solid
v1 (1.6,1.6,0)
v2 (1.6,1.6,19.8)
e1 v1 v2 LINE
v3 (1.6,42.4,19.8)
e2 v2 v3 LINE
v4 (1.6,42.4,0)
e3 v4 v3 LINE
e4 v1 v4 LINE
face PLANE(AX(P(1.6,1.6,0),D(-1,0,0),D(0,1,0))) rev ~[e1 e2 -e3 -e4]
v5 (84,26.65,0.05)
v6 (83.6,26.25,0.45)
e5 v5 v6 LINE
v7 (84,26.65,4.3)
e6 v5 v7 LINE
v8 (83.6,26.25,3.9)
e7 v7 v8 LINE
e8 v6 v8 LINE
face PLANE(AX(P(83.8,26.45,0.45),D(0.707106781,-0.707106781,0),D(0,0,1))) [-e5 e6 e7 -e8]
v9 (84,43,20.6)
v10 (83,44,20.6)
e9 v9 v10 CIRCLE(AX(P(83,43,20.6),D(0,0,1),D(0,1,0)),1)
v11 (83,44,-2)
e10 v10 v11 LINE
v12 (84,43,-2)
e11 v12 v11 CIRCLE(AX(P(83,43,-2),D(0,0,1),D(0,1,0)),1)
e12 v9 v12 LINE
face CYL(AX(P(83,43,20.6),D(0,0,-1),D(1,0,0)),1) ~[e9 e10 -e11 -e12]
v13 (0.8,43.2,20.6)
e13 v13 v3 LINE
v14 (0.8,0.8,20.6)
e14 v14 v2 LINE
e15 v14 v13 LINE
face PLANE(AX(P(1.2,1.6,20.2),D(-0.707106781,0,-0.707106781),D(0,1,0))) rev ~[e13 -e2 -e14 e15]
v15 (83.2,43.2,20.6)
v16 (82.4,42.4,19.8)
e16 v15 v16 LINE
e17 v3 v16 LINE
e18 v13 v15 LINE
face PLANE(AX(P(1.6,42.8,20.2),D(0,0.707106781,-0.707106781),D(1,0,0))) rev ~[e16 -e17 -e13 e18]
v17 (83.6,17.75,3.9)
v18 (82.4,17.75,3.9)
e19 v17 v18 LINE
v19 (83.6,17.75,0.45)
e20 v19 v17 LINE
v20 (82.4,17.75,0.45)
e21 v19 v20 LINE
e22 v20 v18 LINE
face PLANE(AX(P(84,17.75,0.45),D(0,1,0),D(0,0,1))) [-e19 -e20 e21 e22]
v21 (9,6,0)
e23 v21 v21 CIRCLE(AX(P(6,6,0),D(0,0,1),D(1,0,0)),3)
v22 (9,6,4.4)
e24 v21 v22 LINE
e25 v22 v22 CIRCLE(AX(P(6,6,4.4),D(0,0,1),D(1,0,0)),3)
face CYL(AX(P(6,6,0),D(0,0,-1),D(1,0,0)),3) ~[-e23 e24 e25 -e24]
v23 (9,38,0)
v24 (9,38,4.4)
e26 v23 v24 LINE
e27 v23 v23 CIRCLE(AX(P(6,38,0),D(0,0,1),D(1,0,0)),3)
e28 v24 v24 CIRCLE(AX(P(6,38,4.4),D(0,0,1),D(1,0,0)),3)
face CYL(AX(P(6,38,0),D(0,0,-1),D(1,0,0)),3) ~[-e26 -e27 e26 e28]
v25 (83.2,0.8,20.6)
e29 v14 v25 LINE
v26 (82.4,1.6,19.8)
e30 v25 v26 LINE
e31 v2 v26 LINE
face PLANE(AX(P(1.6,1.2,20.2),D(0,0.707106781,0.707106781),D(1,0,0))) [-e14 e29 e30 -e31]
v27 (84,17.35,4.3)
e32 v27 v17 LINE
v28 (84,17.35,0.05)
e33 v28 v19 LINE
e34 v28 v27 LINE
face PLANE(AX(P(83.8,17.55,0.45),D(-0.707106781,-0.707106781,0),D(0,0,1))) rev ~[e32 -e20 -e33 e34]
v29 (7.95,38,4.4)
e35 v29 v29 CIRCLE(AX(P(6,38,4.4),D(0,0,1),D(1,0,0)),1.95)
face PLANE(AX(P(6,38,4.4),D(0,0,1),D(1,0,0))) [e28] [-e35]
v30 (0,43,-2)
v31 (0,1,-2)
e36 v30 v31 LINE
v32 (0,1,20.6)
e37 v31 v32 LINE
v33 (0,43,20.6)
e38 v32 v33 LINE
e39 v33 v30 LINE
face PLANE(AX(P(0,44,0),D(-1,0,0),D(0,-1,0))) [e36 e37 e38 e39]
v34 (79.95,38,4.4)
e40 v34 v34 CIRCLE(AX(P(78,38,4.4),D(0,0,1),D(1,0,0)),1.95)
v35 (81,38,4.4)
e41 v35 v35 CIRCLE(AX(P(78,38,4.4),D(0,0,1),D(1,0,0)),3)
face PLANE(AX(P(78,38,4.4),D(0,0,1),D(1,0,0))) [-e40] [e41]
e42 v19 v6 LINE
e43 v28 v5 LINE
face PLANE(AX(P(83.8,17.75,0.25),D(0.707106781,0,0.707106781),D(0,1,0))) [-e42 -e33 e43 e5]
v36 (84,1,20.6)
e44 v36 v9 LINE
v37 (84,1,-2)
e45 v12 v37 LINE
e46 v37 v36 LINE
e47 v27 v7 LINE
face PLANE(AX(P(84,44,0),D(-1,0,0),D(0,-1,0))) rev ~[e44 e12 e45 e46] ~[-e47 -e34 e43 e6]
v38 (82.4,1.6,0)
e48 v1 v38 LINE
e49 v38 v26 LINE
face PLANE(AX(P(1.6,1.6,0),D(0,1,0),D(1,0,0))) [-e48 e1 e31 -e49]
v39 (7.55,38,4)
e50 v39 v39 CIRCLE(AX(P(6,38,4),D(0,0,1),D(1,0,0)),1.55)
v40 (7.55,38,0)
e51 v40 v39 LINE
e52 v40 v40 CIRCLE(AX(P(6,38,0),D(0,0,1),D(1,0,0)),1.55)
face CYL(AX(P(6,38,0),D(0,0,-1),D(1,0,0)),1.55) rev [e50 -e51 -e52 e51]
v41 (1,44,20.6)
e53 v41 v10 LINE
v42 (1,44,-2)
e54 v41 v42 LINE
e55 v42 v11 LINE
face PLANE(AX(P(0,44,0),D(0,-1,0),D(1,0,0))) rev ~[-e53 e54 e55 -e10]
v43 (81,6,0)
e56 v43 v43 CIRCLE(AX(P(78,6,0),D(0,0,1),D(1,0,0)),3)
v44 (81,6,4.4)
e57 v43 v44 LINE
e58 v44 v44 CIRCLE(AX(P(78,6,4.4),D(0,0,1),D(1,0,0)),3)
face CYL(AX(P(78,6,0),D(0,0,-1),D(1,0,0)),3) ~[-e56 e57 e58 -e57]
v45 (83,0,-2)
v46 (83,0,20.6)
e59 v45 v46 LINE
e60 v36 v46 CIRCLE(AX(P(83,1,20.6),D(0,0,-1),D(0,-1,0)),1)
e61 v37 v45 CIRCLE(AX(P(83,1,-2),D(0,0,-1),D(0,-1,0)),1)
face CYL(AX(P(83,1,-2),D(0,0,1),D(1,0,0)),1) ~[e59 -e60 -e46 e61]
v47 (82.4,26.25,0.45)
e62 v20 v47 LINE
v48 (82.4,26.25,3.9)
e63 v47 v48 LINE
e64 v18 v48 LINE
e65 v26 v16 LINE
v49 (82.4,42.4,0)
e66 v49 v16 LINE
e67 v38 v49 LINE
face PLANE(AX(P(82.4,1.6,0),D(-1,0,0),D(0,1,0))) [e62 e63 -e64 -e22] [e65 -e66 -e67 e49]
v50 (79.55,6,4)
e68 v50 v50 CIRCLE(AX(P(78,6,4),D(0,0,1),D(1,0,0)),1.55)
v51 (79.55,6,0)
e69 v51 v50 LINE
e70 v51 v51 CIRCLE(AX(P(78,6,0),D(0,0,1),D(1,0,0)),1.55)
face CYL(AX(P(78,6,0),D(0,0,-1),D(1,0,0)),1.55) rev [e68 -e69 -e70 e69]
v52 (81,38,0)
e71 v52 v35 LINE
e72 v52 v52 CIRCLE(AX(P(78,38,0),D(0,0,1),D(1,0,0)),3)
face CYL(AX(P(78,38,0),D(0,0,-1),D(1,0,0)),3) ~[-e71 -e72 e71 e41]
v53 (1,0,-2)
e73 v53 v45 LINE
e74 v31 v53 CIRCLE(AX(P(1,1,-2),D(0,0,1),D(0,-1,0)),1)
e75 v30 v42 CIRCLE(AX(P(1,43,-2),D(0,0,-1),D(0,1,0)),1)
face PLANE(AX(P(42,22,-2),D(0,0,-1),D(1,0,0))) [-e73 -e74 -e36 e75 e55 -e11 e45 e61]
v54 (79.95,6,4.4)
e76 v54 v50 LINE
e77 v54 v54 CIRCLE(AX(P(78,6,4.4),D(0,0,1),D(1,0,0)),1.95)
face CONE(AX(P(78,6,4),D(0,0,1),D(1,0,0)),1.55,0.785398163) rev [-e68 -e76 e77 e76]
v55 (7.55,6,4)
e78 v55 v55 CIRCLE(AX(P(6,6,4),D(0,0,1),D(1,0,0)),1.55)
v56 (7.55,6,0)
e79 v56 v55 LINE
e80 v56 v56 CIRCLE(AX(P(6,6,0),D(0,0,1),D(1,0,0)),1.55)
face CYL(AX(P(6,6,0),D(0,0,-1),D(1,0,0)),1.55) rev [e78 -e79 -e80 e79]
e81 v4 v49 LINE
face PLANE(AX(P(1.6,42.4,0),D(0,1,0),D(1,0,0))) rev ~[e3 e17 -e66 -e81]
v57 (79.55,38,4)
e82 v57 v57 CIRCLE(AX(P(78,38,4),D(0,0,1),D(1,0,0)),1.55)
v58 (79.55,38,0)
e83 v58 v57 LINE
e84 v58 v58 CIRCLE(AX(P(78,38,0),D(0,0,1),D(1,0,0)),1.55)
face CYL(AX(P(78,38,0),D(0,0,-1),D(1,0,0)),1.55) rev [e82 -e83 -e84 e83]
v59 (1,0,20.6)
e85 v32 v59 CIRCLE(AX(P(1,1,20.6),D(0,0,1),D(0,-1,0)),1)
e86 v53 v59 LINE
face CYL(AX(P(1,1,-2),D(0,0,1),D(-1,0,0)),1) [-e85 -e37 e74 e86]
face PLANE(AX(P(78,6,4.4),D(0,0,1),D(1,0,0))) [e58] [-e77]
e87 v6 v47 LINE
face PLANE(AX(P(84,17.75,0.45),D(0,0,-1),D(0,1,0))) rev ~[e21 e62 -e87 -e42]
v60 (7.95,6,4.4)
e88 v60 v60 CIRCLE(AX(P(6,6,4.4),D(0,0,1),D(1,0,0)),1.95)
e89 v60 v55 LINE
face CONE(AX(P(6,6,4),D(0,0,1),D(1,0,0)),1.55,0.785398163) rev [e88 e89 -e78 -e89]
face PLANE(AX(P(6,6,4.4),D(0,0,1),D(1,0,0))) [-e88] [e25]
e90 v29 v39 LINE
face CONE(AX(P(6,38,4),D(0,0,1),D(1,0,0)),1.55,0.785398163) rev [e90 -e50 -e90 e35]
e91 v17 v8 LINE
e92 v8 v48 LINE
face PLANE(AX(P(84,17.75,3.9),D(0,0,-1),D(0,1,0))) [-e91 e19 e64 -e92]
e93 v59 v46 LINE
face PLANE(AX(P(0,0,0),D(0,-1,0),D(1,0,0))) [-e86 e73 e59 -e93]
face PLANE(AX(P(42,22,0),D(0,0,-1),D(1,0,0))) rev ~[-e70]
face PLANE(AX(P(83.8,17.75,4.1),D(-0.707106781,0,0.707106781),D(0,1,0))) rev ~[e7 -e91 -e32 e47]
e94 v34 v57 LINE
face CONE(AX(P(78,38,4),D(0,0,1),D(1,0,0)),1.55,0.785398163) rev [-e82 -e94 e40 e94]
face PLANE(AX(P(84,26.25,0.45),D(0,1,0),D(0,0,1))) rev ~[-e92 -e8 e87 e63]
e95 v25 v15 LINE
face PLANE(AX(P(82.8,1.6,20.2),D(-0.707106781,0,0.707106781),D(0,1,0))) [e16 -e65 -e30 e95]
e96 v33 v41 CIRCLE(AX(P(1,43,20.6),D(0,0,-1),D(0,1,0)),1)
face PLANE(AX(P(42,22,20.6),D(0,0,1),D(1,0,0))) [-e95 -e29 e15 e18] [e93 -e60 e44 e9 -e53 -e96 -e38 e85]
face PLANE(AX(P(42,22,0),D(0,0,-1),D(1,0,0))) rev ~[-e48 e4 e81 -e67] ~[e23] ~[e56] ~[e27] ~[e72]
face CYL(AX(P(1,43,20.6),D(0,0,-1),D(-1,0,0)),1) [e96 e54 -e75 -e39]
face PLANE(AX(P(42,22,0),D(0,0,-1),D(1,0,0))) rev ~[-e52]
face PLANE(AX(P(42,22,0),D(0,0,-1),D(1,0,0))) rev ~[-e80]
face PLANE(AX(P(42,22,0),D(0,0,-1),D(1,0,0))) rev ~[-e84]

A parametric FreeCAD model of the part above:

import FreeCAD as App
import Part
import Sketcher

V = App.Vector


def edges_at(feature, points):
    """Names of the edges that pass closest to the given points."""
    edges = feature.Shape.Edges
    near = lambda p: min(range(len(edges)), key=lambda i: edges[i].distToShape(Part.Vertex(*p))[0])
    return sorted({f"Edge{near(p) + 1}" for p in points})

doc = App.newDocument("Part")
body = doc.addObject("PartDesign::Body", "Body")

sketch1 = doc.addObject("Sketcher::SketchObject", "Sketch")
body.addObject(sketch1)
sketch1.AttachmentSupport = (doc.XY_Plane, [""])
sketch1.MapMode = "FlatFace"
sketch1.addGeometry(Part.LineSegment(V(0, 44, 0), V(0, 0, 0)), False)
sketch1.addGeometry(Part.LineSegment(V(0, 0, 0), V(84, 0, 0)), False)
sketch1.addGeometry(Part.LineSegment(V(84, 0, 0), V(84, 44, 0)), False)
sketch1.addGeometry(Part.LineSegment(V(84, 44, 0), V(0, 44, 0)), False)
sketch1.addGeometry(Part.LineSegment(V(82, 2, 0), V(2, 2, 0)), False)
sketch1.addGeometry(Part.LineSegment(V(2, 2, 0), V(2, 42, 0)), False)
sketch1.addGeometry(Part.LineSegment(V(2, 42, 0), V(82, 42, 0)), False)
sketch1.addGeometry(Part.LineSegment(V(82, 42, 0), V(82, 2, 0)), False)
sketch1.addConstraint(Sketcher.Constraint("Coincident", 0, 2, 1, 1))
sketch1.addConstraint(Sketcher.Constraint("Coincident", 1, 2, 2, 1))
sketch1.addConstraint(Sketcher.Constraint("Coincident", 2, 2, 3, 1))
sketch1.addConstraint(Sketcher.Constraint("Coincident", 3, 2, 0, 1))
sketch1.addConstraint(Sketcher.Constraint("Coincident", 4, 2, 5, 1))
sketch1.addConstraint(Sketcher.Constraint("Coincident", 5, 2, 6, 1))
sketch1.addConstraint(Sketcher.Constraint("Coincident", 6, 2, 7, 1))
sketch1.addConstraint(Sketcher.Constraint("Coincident", 7, 2, 4, 1))
sketch1.addConstraint(Sketcher.Constraint("Vertical", 0))
sketch1.addConstraint(Sketcher.Constraint("Horizontal", 1))
sketch1.addConstraint(Sketcher.Constraint("Vertical", 2))
sketch1.addConstraint(Sketcher.Constraint("Horizontal", 3))
sketch1.addConstraint(Sketcher.Constraint("Horizontal", 4))
sketch1.addConstraint(Sketcher.Constraint("Vertical", 5))
sketch1.addConstraint(Sketcher.Constraint("Horizontal", 6))
sketch1.addConstraint(Sketcher.Constraint("Vertical", 7))
sketch1.addConstraint(Sketcher.Constraint("Coincident", 0, 2, -1, 1))
sketch1.addConstraint(Sketcher.Constraint("DistanceX", 1, 1, 1, 2, 84.0))
sketch1.addConstraint(Sketcher.Constraint("DistanceY", 0, 2, 0, 1, 44.0))
sketch1.addConstraint(Sketcher.Constraint("DistanceX", 4, 2, 4, 1, 80.8))
sketch1.addConstraint(Sketcher.Constraint("DistanceY", 5, 1, 5, 2, 40.8))
sketch1.addConstraint(Sketcher.Constraint("DistanceX", -1, 1, 4, 2, 1.6))
sketch1.addConstraint(Sketcher.Constraint("DistanceY", -1, 1, 4, 2, 1.6))
pad1 = doc.addObject("PartDesign::Pad", "Pad")
body.addObject(pad1)
pad1.Profile = sketch1
pad1.Length = 20.6

sketch2 = doc.addObject("Sketcher::SketchObject", "Sketch001")
body.addObject(sketch2)
sketch2.AttachmentSupport = (doc.XY_Plane, [""])
sketch2.MapMode = "FlatFace"
sketch2.addGeometry(Part.LineSegment(V(0, 0, 0), V(0, 44, 0)), False)
sketch2.addGeometry(Part.LineSegment(V(0, 44, 0), V(84, 44, 0)), False)
sketch2.addGeometry(Part.LineSegment(V(84, 44, 0), V(84, 0, 0)), False)
sketch2.addGeometry(Part.LineSegment(V(84, 0, 0), V(0, 0, 0)), False)
sketch2.addConstraint(Sketcher.Constraint("Coincident", 0, 2, 1, 1))
sketch2.addConstraint(Sketcher.Constraint("Coincident", 1, 2, 2, 1))
sketch2.addConstraint(Sketcher.Constraint("Coincident", 2, 2, 3, 1))
sketch2.addConstraint(Sketcher.Constraint("Coincident", 3, 2, 0, 1))
sketch2.addConstraint(Sketcher.Constraint("Vertical", 0))
sketch2.addConstraint(Sketcher.Constraint("Horizontal", 1))
sketch2.addConstraint(Sketcher.Constraint("Vertical", 2))
sketch2.addConstraint(Sketcher.Constraint("Horizontal", 3))
sketch2.addConstraint(Sketcher.Constraint("Coincident", 3, 2, -1, 1))
sketch2.addConstraint(Sketcher.Constraint("DistanceX", 1, 1, 1, 2, 84.0))
sketch2.addConstraint(Sketcher.Constraint("DistanceY", 0, 1, 0, 2, 44.0))
pad2 = doc.addObject("PartDesign::Pad", "Pad001")
body.addObject(pad2)
pad2.Profile = sketch2
pad2.Length = 2
pad2.Reversed = True

sketch3 = doc.addObject("Sketcher::SketchObject", "Sketch002")
body.addObject(sketch3)
sketch3.AttachmentSupport = (doc.XY_Plane, [""])
sketch3.MapMode = "FlatFace"
sketch3.addGeometry(Part.Circle(V(6, 38, 0), V(0, 0, 1), 3), False)
sketch3.addGeometry(Part.Circle(V(6, 38, 0), V(0, 0, 1), 1.6), False)
sketch3.addGeometry(Part.Circle(V(78, 38, 0), V(0, 0, 1), 3), False)
sketch3.addGeometry(Part.Circle(V(78, 38, 0), V(0, 0, 1), 1.6), False)
sketch3.addGeometry(Part.Circle(V(78, 6, 0), V(0, 0, 1), 3), False)
sketch3.addGeometry(Part.Circle(V(78, 6, 0), V(0, 0, 1), 1.6), False)
sketch3.addGeometry(Part.Circle(V(6, 6, 0), V(0, 0, 1), 3), False)
sketch3.addGeometry(Part.Circle(V(6, 6, 0), V(0, 0, 1), 1.6), False)
sketch3.addConstraint(Sketcher.Constraint("Coincident", 1, 3, 0, 3))
sketch3.addConstraint(Sketcher.Constraint("Coincident", 3, 3, 2, 3))
sketch3.addConstraint(Sketcher.Constraint("Coincident", 5, 3, 4, 3))
sketch3.addConstraint(Sketcher.Constraint("Coincident", 7, 3, 6, 3))
sketch3.addConstraint(Sketcher.Constraint("Equal", 0, 2))
sketch3.addConstraint(Sketcher.Constraint("Equal", 1, 3))
sketch3.addConstraint(Sketcher.Constraint("Equal", 2, 4))
sketch3.addConstraint(Sketcher.Constraint("Equal", 3, 5))
sketch3.addConstraint(Sketcher.Constraint("Equal", 4, 6))
sketch3.addConstraint(Sketcher.Constraint("Equal", 5, 7))
sketch3.addConstraint(Sketcher.Constraint("Horizontal", 1, 3, 2, 3))
sketch3.addConstraint(Sketcher.Constraint("Horizontal", 5, 3, 6, 3))
sketch3.addConstraint(Sketcher.Constraint("Vertical", 3, 3, 4, 3))
sketch3.addConstraint(Sketcher.Constraint("Vertical", 1, 3, 6, 3))
sketch3.addConstraint(Sketcher.Constraint("Diameter", 0, 6.0))
sketch3.addConstraint(Sketcher.Constraint("Diameter", 1, 3.1))
sketch3.addConstraint(Sketcher.Constraint("DistanceX", -1, 1, 0, 3, 6.0))
sketch3.addConstraint(Sketcher.Constraint("DistanceY", -1, 1, 0, 3, 38.0))
sketch3.addConstraint(Sketcher.Constraint("DistanceX", -1, 1, 2, 3, 78.0))
sketch3.addConstraint(Sketcher.Constraint("DistanceY", -1, 1, 4, 3, 6.0))
pad3 = doc.addObject("PartDesign::Pad", "Pad002")
body.addObject(pad3)
pad3.Profile = sketch3
pad3.Length = 4.4

sketch4 = doc.addObject("Sketcher::SketchObject", "Sketch003")
body.addObject(sketch4)
sketch4.AttachmentSupport = (doc.YZ_Plane, [""])
sketch4.MapMode = "FlatFace"
sketch4.AttachmentOffset = App.Placement(V(0, 0, 84), App.Rotation())
sketch4.addGeometry(Part.LineSegment(V(17.8, 3.9, 0), V(17.8, 0.5, 0)), False)
sketch4.addGeometry(Part.LineSegment(V(17.8, 0.5, 0), V(26.2, 0.5, 0)), False)
sketch4.addGeometry(Part.LineSegment(V(26.2, 0.5, 0), V(26.2, 3.9, 0)), False)
sketch4.addGeometry(Part.LineSegment(V(26.2, 3.9, 0), V(17.8, 3.9, 0)), False)
sketch4.addConstraint(Sketcher.Constraint("Coincident", 0, 2, 1, 1))
sketch4.addConstraint(Sketcher.Constraint("Coincident", 1, 2, 2, 1))
sketch4.addConstraint(Sketcher.Constraint("Coincident", 2, 2, 3, 1))
sketch4.addConstraint(Sketcher.Constraint("Coincident", 3, 2, 0, 1))
sketch4.addConstraint(Sketcher.Constraint("Vertical", 0))
sketch4.addConstraint(Sketcher.Constraint("Horizontal", 1))
sketch4.addConstraint(Sketcher.Constraint("Vertical", 2))
sketch4.addConstraint(Sketcher.Constraint("Horizontal", 3))
sketch4.addConstraint(Sketcher.Constraint("DistanceX", 1, 1, 1, 2, 8.5))
sketch4.addConstraint(Sketcher.Constraint("DistanceY", 0, 2, 0, 1, 3.45))
sketch4.addConstraint(Sketcher.Constraint("DistanceY", -1, 1, 2, 2, 3.9))
sketch4.addConstraint(Sketcher.Constraint("DistanceX", -1, 1, 0, 2, 17.75))
pocket1 = doc.addObject("PartDesign::Pocket", "Pocket")
body.addObject(pocket1)
pocket1.Profile = sketch4
pocket1.Length = 1.6
doc.recompute()

chamfer = doc.addObject("PartDesign::Chamfer", "Chamfer")
body.addObject(chamfer)
chamfer.Base = (pocket1, edges_at(pocket1, [
    (1.6, 22, 20.6),
    (42, 42.4, 20.6),
    (82.4, 22, 20.6),
    (42, 1.6, 20.6),
]))
chamfer.Size = 0.8
doc.recompute()

chamfer2 = doc.addObject("PartDesign::Chamfer", "Chamfer001")
body.addObject(chamfer2)
chamfer2.Base = (chamfer, edges_at(chamfer, [
    (4.45, 38, 4.4),
    (76.45, 38, 4.4),
    (76.45, 6, 4.4),
    (4.45, 6, 4.4),
]))
chamfer2.Size = 0.4
doc.recompute()

fillet = doc.addObject("PartDesign::Fillet", "Fillet")
body.addObject(fillet)
fillet.Base = (chamfer2, edges_at(chamfer2, [
    (0, 0, 9.3),
    (84, 0, 9.3),
    (84, 44, 9.3),
    (0, 44, 9.3),
]))
fillet.Radius = 1
doc.recompute()

chamfer3 = doc.addObject("PartDesign::Chamfer", "Chamfer002")
body.addObject(chamfer3)
chamfer3.Base = (fillet, edges_at(fillet, [
    (84, 22, 3.9),
    (84, 26.25, 2.175),
    (84, 22, 0.45),
    (84, 17.75, 2.175),
]))
chamfer3.Size = 0.4

doc.recompute()
